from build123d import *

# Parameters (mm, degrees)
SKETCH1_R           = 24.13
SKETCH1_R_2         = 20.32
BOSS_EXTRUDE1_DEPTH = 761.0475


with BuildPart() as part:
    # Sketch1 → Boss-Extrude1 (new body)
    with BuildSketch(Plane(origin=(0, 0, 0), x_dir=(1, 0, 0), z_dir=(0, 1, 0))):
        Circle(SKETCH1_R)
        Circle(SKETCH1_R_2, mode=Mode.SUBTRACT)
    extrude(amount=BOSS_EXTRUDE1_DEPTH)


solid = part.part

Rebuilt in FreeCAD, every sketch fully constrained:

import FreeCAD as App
import Part
import Sketcher
Q = App.Units.Quantity

doc = App.newDocument("Part")
body = doc.addObject("PartDesign::Body", "Body")

sketch1 = body.newObject("Sketcher::SketchObject", "Sketch")
sketch1.AttachmentSupport = (doc.getObject("XZ_Plane"), [""])
sketch1.MapMode = "FlatFace"
sketch1.addGeometry(Part.Circle(App.Vector(0, 0, 0), App.Vector(0, 0, 1), 24), False)
sketch1.addGeometry(Part.Circle(App.Vector(0, 0, 0), App.Vector(0, 0, 1), 20), False)
sketch1.addConstraint(Sketcher.Constraint("Coincident", 0, 3, -1, 1))
sketch1.addConstraint(Sketcher.Constraint("Coincident", 1, 3, -1, 1))
sketch1.addConstraint(Sketcher.Constraint("Diameter", 0, Q("1.9 in")))
sketch1.addConstraint(Sketcher.Constraint("Diameter", 1, Q("1.6 in")))
pad1 = body.newObject("PartDesign::Pad", "Pad")
pad1.Profile = sketch1
pad1.Length = Q("29.9625 in")
pad1.Reversed = True

doc.recompute()
